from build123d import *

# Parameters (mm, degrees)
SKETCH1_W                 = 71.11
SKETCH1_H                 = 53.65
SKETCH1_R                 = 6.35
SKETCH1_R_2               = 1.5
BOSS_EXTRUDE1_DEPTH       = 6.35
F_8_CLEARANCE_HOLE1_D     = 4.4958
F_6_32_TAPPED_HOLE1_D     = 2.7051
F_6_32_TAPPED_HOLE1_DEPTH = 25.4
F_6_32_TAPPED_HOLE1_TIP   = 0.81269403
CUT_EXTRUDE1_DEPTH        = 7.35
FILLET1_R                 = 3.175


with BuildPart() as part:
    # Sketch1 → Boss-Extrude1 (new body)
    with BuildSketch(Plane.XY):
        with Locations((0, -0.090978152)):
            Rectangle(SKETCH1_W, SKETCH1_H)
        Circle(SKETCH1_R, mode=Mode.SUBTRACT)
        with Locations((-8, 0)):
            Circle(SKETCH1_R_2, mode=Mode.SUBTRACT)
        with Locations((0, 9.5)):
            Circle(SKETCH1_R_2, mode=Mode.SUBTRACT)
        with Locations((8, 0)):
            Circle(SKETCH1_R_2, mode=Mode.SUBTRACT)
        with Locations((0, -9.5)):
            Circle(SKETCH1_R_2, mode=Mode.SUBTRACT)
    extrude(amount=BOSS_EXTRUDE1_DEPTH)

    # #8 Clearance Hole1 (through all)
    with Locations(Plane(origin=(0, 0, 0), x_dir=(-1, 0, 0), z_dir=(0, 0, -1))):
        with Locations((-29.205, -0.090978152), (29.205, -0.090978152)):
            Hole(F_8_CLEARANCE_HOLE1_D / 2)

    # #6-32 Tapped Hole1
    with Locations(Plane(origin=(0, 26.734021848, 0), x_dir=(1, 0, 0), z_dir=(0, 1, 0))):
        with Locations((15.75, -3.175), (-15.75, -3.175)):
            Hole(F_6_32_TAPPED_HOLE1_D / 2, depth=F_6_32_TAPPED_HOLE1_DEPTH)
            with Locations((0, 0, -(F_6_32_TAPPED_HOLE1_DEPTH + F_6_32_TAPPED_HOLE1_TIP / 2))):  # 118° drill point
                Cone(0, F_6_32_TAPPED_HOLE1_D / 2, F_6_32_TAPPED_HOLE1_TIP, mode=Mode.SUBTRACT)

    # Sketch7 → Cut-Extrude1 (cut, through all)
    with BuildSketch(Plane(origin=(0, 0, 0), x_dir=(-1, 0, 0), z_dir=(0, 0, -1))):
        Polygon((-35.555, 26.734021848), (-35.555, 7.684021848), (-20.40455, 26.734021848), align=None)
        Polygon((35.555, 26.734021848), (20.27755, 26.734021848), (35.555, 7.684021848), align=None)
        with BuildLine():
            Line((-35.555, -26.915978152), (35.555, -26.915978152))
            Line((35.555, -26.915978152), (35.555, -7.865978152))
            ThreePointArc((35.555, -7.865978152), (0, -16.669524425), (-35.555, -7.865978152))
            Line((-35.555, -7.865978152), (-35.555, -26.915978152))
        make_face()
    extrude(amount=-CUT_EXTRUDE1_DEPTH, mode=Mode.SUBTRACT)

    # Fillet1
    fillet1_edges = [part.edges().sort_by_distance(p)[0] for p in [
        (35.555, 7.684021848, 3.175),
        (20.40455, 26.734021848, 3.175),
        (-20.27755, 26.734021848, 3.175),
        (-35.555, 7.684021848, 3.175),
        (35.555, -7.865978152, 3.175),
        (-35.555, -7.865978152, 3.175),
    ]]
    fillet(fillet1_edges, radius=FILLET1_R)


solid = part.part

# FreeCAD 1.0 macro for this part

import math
import FreeCAD as App
import Part
import Sketcher
from FreeCAD import Vector
Q = App.Units.Quantity


def edges_at(feature, points):
    """Names of the edges that pass closest to the given points."""
    edges = feature.Shape.Edges
    near = lambda p: min(range(len(edges)), key=lambda i: edges[i].distToShape(Part.Vertex(*p))[0])
    return sorted({f"Edge{near(p) + 1}" for p in points})


def add_polygon(sketch, points):
    """Adds a closed chain of lines whose ends are joined by coincident constraints."""
    first, n = sketch.GeometryCount, len(points)
    for a, b in zip(points, points[1:] + points[:1]):
        sketch.addGeometry(Part.LineSegment(App.Vector(*a, 0), App.Vector(*b, 0)), False)
    for i in range(n):
        sketch.addConstraint(Sketcher.Constraint("Coincident", first + i, 2, first + (i + 1) % n, 1))

doc = App.newDocument("Part")
body = doc.addObject("PartDesign::Body", "Body")

sketch1 = body.newObject("Sketcher::SketchObject", "Sketch")
sketch1.AttachmentSupport = (doc.getObject("XY_Plane"), [""])
sketch1.MapMode = "FlatFace"
add_polygon(sketch1, [(-35.6, 26.7), (-35.6, -26.9), (35.6, -26.9), (35.6, 26.7)])
sketch1.addGeometry(Part.Circle(Vector(0, -9.5, 0), Vector(0, 0, 1), 1.5), False)
sketch1.addGeometry(Part.Circle(Vector(-8, 0, 0), Vector(0, 0, 1), 1.5), False)
sketch1.addGeometry(Part.Circle(Vector(0, 0, 0), Vector(0, 0, 1), 6.3), False)
sketch1.addGeometry(Part.Circle(Vector(8, 0, 0), Vector(0, 0, 1), 1.5), False)
sketch1.addGeometry(Part.Circle(Vector(0, 9.5, 0), Vector(0, 0, 1), 1.5), False)
sketch1.addConstraint([
    Sketcher.Constraint("Vertical", 0),
    Sketcher.Constraint("Horizontal", 1),
    Sketcher.Constraint("Vertical", 2),
    Sketcher.Constraint("Horizontal", 3),
    Sketcher.Constraint("Coincident", 6, 3, -1, 1),
    Sketcher.Constraint("Equal", 4, 5),
    Sketcher.Constraint("Equal", 5, 7),
    Sketcher.Constraint("Equal", 7, 8),
    Sketcher.Constraint("Symmetric", 5, 3, 7, 3, -1, 1),
    Sketcher.Constraint("Symmetric", 4, 3, 8, 3, -1, 1),
    Sketcher.Constraint("PointOnObject", 4, 3, -2),
    Sketcher.Constraint("PointOnObject", 5, 3, -1),
    Sketcher.Constraint("Diameter", 6, Q("0.5 in")),
    Sketcher.Constraint("Diameter", 4, 3.0),
    Sketcher.Constraint("DistanceX", 1, 1, 1, 2, 71.11),
    Sketcher.Constraint("DistanceY", 0, 2, 0, 1, 53.65),
    Sketcher.Constraint("DistanceY", 0, 2, 8, 3, Q("1.4336999 in")),
    Sketcher.Constraint("DistanceY", 4, 3, -1, 1, 9.5),
    Sketcher.Constraint("DistanceX", 5, 3, -1, 1, 8.0),
    Sketcher.Constraint("DistanceX", 0, 2, -1, 1, 35.555),
])
pad1 = body.newObject("PartDesign::Pad", "Pad")
pad1.Profile = sketch1
pad1.Length = Q("0.25 in")

sketch2 = body.newObject("Sketcher::SketchObject", "Sketch001")
sketch2.AttachmentSupport = (doc.getObject("XY_Plane"), [""])
sketch2.MapMode = "FlatFace"
sketch2.addGeometry([
    Part.Circle(Vector(29.2, -0.1, 0), Vector(0, 0, 1), 2.2),
    Part.Circle(Vector(-29.2, -0.1, 0), Vector(0, 0, 1), 2.2),
], False)
sketch2.addConstraint([
    Sketcher.Constraint("Equal", 0, 1),
    Sketcher.Constraint("Symmetric", 0, 3, 1, 3, -2),
    Sketcher.Constraint("Diameter", 0, Q("0.177 in")),
    Sketcher.Constraint("DistanceX", -1, 1, 0, 3, 29.205),
    Sketcher.Constraint("DistanceY", 0, 3, -1, 1, 0.090978),
])
doc.recompute()
hole = body.newObject("PartDesign::Hole", "Hole")
hole.Profile = sketch2
hole.ThreadType = "None"
hole.Diameter = Q("0.177 in")
hole.DepthType = "ThroughAll"
hole.Reversed = True

sketch3 = body.newObject("Sketcher::SketchObject", "Sketch002")
sketch3.AttachmentSupport = (doc.getObject("XZ_Plane"), [""])
sketch3.MapMode = "FlatFace"
sketch3.AttachmentOffset = App.Placement(Vector(0, 0, -26.734022), App.Rotation())
sketch3.addGeometry([
    Part.Circle(Vector(15.8, 3.2, 0), Vector(0, 0, 1), 1.4),
    Part.Circle(Vector(-15.8, 3.2, 0), Vector(0, 0, 1), 1.4),
], False)
sketch3.addConstraint([
    Sketcher.Constraint("Equal", 0, 1),
    Sketcher.Constraint("Symmetric", 0, 3, 1, 3, -2),
    Sketcher.Constraint("Diameter", 0, Q("0.1065 in")),
    Sketcher.Constraint("DistanceY", -1, 1, 0, 3, Q("0.125 in")),
    Sketcher.Constraint("DistanceX", -1, 1, 0, 3, 15.75),
])
doc.recompute()
hole2 = body.newObject("PartDesign::Hole", "Hole001")
hole2.Profile = sketch3
hole2.ThreadType = "None"
hole2.Diameter = Q("0.1065 in")
hole2.DepthType = "Dimension"
hole2.Depth = Q("1 in")
hole2.DrillPoint = "Angled"
hole2.DrillPointAngle = 118
hole2.Reversed = True

sketch4 = body.newObject("Sketcher::SketchObject", "Sketch003")
sketch4.AttachmentSupport = (doc.getObject("XY_Plane"), [""])
sketch4.MapMode = "FlatFace"
add_polygon(sketch4, [(36, 27), (36, 8), (20, 27)])
add_polygon(sketch4, [(-36, 27), (-20, 27), (-36, 8)])
sketch4.addGeometry(Part.LineSegment(Vector(36, -27, 0), Vector(-36, -27, 0)), False)
sketch4.addGeometry(Part.LineSegment(Vector(-36, -27, 0), Vector(-36, -8, 0)), False)
sketch4.addGeometry(Part.ArcOfCircle(Part.Circle(Vector(0, 60, 0), Vector(0, 0, 1), 76), math.radians(-118), math.radians(-62)), False)
sketch4.addGeometry(Part.LineSegment(Vector(36, -8, 0), Vector(36, -27, 0)), False)
sketch4.addConstraint([
    Sketcher.Constraint("Coincident", 6, 2, 7, 1),
    Sketcher.Constraint("Coincident", 7, 2, 8, 1),
    Sketcher.Constraint("Coincident", 8, 2, 9, 1),
    Sketcher.Constraint("Coincident", 9, 2, 6, 1),
    Sketcher.Constraint("Vertical", 0),
    Sketcher.Constraint("Horizontal", 2),
    Sketcher.Constraint("Horizontal", 3),
    Sketcher.Constraint("Vertical", 5),
    Sketcher.Constraint("Horizontal", 6),
    Sketcher.Constraint("Vertical", 7),
    Sketcher.Constraint("Vertical", 9),
    Sketcher.Constraint("Symmetric", 0, 2, 4, 2, -2),
    Sketcher.Constraint("Symmetric", 7, 2, 8, 2, -2),
    Sketcher.Constraint("Horizontal", 2, 2, 3, 2),
    Sketcher.Constraint("Vertical", 5, 2, 6, 2),
    Sketcher.Constraint("Equal", 5, 7),
    Sketcher.Constraint("Radius", 8, Q("3 in")),
    Sketcher.Constraint("DistanceY", 0, 2, 0, 1, Q("0.75 in")),
    Sketcher.Constraint("DistanceX", 6, 2, 6, 1, 71.11),
    Sketcher.Constraint("DistanceX", 2, 1, 2, 2, 15.15045),
    Sketcher.Constraint("DistanceX", 3, 1, 3, 2, 15.27745),
    Sketcher.Constraint("DistanceY", 6, 2, 4, 2, 34.6),
    Sketcher.Constraint("DistanceY", -1, 1, 0, 2, 7.684022),
])
pocket1 = body.newObject("PartDesign::Pocket", "Pocket")
pocket1.Profile = sketch4
pocket1.Type = "ThroughAll"
pocket1.Reversed = True
doc.recompute()

fillet = body.newObject("PartDesign::Fillet", "Fillet")
fillet.Base = (pocket1, edges_at(pocket1, [
    (35.555, 7.684, 3.175),
    (20.405, 26.734, 3.175),
    (-20.278, 26.734, 3.175),
    (-35.555, 7.684, 3.175),
    (35.555, -7.866, 3.175),
    (-35.555, -7.866, 3.175),
]))
fillet.Radius = Q("0.125 in")

doc.recompute()
